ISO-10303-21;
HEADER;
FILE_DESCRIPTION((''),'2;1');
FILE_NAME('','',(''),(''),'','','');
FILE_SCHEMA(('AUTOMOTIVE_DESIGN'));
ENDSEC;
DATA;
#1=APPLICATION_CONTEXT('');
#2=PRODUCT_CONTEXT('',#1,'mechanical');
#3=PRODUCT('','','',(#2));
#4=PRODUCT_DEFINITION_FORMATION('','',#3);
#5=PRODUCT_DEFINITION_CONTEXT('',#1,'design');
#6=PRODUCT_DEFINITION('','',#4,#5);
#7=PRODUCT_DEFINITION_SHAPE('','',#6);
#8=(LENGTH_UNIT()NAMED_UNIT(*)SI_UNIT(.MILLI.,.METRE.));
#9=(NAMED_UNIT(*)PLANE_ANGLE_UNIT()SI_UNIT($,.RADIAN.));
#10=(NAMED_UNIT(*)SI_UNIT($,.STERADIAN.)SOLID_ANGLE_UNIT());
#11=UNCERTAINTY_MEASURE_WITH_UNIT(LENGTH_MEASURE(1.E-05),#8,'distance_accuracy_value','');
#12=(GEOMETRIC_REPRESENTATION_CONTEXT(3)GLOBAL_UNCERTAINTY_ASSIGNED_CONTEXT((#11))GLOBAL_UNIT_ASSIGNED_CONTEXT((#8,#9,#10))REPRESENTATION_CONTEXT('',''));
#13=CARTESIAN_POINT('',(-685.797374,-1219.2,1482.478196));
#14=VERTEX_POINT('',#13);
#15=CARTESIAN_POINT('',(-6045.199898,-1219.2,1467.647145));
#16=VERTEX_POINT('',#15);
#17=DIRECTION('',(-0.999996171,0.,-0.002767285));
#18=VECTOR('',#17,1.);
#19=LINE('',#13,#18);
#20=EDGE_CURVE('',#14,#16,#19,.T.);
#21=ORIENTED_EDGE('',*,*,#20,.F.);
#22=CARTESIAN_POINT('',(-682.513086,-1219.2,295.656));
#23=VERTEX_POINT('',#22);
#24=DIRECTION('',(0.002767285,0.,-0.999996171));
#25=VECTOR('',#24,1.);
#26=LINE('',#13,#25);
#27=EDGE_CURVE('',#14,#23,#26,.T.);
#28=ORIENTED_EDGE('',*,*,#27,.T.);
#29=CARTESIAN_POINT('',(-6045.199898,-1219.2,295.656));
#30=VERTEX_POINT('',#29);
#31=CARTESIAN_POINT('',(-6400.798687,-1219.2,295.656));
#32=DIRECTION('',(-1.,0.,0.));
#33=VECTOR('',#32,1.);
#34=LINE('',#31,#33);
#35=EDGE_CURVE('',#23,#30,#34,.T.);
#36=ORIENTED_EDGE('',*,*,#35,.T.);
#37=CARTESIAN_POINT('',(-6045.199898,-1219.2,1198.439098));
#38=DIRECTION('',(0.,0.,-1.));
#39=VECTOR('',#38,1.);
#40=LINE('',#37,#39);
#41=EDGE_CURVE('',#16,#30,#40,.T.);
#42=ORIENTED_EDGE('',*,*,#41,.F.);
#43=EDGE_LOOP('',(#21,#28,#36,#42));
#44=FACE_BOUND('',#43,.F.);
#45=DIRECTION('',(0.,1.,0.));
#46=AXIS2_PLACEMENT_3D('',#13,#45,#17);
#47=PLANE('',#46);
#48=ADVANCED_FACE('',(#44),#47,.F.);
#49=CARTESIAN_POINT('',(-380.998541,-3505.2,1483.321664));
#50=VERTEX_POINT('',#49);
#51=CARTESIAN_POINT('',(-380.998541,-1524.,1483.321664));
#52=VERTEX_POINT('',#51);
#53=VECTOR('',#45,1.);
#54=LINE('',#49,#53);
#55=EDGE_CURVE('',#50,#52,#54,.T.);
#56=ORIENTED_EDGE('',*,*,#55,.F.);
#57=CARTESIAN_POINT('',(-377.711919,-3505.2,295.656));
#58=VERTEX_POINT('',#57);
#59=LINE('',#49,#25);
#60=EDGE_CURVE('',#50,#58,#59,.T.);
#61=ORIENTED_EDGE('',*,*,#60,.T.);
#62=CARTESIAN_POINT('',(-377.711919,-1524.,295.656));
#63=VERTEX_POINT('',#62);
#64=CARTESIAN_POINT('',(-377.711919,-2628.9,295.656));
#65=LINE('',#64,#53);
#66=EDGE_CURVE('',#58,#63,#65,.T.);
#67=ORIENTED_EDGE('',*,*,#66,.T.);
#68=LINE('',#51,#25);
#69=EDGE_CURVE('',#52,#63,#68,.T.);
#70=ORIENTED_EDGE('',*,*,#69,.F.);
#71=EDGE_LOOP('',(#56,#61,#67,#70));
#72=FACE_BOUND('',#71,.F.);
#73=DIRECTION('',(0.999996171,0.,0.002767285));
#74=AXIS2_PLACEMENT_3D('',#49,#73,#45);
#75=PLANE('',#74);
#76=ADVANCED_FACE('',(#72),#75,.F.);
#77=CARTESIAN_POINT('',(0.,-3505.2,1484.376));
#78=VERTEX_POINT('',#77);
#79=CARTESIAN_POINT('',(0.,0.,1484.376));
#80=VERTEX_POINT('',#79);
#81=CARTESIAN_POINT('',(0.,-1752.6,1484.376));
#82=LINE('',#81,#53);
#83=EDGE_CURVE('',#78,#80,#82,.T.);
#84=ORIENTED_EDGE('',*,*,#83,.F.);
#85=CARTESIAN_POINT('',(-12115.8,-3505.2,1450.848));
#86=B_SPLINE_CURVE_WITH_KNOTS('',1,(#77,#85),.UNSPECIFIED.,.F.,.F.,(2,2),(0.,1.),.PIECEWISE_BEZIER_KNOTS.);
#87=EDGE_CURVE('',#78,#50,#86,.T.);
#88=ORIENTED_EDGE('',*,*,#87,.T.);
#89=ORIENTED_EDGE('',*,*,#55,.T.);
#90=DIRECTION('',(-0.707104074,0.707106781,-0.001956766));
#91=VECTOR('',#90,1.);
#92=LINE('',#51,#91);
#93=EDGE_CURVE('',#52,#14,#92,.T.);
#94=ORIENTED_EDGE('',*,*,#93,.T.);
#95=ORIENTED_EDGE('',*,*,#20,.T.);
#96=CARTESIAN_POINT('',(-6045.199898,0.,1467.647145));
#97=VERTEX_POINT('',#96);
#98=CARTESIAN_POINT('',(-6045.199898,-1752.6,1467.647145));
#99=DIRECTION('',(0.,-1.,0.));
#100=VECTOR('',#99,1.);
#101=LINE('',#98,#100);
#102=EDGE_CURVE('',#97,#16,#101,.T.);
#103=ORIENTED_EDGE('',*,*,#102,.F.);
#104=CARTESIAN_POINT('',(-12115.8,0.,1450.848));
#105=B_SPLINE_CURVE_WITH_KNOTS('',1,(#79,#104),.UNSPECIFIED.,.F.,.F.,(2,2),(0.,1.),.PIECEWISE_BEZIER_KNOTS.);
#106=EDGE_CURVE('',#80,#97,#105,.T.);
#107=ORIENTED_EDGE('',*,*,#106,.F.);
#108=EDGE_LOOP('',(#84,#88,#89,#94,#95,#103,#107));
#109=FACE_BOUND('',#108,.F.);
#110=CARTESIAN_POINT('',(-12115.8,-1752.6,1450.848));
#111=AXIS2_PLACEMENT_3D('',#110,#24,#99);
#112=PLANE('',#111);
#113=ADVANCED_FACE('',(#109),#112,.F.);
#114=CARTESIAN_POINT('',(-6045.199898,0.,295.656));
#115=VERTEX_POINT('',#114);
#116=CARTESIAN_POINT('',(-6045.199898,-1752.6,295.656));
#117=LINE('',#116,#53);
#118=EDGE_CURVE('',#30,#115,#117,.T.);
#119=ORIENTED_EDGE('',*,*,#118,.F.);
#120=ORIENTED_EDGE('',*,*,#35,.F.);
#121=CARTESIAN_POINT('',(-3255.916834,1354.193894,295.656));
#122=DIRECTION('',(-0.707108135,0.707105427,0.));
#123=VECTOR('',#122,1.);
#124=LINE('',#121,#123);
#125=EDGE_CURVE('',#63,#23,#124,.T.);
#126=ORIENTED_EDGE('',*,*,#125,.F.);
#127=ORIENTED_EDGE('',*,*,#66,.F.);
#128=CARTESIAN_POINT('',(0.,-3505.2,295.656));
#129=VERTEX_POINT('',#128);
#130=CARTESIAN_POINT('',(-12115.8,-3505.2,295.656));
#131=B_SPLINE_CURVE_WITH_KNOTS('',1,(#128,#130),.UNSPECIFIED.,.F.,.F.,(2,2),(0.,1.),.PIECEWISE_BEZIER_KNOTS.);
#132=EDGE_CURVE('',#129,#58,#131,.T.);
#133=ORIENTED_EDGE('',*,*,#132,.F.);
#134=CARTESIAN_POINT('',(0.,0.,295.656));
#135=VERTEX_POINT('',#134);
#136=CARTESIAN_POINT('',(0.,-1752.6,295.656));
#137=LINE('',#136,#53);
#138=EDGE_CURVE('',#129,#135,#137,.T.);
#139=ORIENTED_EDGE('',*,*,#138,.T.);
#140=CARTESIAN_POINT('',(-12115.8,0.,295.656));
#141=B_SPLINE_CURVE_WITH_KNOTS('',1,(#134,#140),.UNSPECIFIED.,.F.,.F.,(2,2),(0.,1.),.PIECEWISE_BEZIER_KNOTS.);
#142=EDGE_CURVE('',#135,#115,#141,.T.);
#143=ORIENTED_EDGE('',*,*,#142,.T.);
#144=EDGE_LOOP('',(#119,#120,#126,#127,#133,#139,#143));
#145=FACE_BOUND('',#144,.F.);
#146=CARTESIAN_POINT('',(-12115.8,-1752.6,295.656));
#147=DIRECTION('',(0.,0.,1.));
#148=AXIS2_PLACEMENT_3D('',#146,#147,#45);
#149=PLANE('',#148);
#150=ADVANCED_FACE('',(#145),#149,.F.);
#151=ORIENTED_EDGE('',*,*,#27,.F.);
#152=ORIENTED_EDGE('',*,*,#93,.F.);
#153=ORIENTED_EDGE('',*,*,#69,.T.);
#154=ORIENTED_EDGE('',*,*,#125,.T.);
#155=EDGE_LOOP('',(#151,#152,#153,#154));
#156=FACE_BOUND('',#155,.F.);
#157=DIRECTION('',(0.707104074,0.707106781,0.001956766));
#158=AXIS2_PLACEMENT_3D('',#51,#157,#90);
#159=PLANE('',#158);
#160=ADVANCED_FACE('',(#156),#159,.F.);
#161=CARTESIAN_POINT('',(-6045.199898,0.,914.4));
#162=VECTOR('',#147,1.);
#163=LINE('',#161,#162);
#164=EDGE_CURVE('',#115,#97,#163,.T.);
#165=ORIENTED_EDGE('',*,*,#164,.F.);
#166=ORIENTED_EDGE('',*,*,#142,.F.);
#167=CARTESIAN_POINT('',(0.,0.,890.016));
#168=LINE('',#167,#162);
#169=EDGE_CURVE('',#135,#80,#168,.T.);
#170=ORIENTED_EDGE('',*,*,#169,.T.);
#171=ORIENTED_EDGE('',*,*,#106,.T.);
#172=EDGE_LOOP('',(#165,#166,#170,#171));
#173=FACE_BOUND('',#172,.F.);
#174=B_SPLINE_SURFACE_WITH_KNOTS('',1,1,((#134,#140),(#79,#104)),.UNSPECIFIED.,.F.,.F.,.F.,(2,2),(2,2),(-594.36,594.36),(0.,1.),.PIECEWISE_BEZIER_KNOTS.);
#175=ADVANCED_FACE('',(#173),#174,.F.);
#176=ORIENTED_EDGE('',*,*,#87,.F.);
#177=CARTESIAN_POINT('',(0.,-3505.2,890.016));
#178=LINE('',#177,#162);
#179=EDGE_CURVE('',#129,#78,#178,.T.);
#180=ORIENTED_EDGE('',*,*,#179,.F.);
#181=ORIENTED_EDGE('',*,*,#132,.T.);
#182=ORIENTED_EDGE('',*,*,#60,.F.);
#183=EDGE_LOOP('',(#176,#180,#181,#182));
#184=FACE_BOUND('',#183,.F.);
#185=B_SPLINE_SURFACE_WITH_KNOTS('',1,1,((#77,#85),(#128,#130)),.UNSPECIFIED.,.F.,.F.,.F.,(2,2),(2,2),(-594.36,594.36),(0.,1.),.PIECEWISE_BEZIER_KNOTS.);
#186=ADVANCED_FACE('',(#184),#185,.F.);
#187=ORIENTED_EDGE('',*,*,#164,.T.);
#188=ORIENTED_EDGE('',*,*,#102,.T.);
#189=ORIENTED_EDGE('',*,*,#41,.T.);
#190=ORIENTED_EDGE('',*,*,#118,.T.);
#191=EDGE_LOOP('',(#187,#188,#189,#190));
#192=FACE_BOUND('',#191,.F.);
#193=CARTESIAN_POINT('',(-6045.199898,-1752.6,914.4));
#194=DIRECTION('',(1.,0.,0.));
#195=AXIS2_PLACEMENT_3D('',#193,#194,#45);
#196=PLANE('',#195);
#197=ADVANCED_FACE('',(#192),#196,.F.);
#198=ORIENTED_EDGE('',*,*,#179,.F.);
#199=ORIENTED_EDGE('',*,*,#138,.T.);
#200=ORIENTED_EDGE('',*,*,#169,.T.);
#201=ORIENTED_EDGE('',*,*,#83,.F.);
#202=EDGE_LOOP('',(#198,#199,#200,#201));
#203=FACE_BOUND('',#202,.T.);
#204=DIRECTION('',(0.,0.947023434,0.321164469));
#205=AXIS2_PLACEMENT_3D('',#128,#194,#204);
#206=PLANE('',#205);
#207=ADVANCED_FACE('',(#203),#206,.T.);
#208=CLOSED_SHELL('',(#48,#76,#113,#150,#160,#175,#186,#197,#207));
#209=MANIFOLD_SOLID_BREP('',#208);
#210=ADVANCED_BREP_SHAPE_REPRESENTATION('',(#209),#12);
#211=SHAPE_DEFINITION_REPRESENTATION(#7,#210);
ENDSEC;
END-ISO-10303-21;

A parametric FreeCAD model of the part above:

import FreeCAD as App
import Part
import Sketcher
from FreeCAD import Vector
Q = App.Units.Quantity

doc = App.newDocument("Part")
body = doc.addObject("PartDesign::Body", "Body")

sketch1 = body.newObject("Sketcher::SketchObject", "Sketch")
sketch1.AttachmentSupport = (doc.getObject("YZ_Plane"), [""])
sketch1.MapMode = "FlatFace"
sketch1.addGeometry([
    Part.LineSegment(Vector(-3505.2, 1484.376, 0), Vector(-3505.2, 295.656, 0)),
    Part.LineSegment(Vector(-3505.2, 295.656, 0), Vector(0, 295.656, 0)),
    Part.LineSegment(Vector(0, 295.656, 0), Vector(0, 1484.376, 0)),
    Part.LineSegment(Vector(0, 1484.376, 0), Vector(-3505.2, 1484.376, 0)),
], False)
sketch1.addConstraint([
    Sketcher.Constraint("Coincident", 0, 2, 1, 1),
    Sketcher.Constraint("Coincident", 1, 2, 2, 1),
    Sketcher.Constraint("Coincident", 2, 2, 3, 1),
    Sketcher.Constraint("Coincident", 3, 2, 0, 1),
    Sketcher.Constraint("Vertical", 0),
    Sketcher.Constraint("Horizontal", 1),
    Sketcher.Constraint("Vertical", 2),
    Sketcher.Constraint("Horizontal", 3),
    Sketcher.Constraint("PointOnObject", 1, 2, -2),
    Sketcher.Constraint("DistanceX", 1, 1, 1, 2, Q("138 in")),
    Sketcher.Constraint("DistanceY", 0, 2, 0, 1, Q("46.8 in")),
    Sketcher.Constraint("DistanceY", -1, 1, 0, 2, Q("11.64 in")),
])

sketch2 = body.newObject("Sketcher::SketchObject", "Sketch001")
sketch2.AttachmentSupport = (doc.getObject("YZ_Plane"), [""])
sketch2.MapMode = "FlatFace"
sketch2.AttachmentOffset = App.Placement(Vector(0, 0, -477 * 25.4), App.Rotation())
sketch2.addGeometry([
    Part.LineSegment(Vector(-3505.2, 1450.848, 0), Vector(-3505.2, 295.656, 0)),
    Part.LineSegment(Vector(-3505.2, 295.656, 0), Vector(0, 295.656, 0)),
    Part.LineSegment(Vector(0, 295.656, 0), Vector(0, 1450.848, 0)),
    Part.LineSegment(Vector(0, 1450.848, 0), Vector(-3505.2, 1450.848, 0)),
], False)
sketch2.addConstraint([
    Sketcher.Constraint("Coincident", 0, 2, 1, 1),
    Sketcher.Constraint("Coincident", 1, 2, 2, 1),
    Sketcher.Constraint("Coincident", 2, 2, 3, 1),
    Sketcher.Constraint("Coincident", 3, 2, 0, 1),
    Sketcher.Constraint("Vertical", 0),
    Sketcher.Constraint("Horizontal", 1),
    Sketcher.Constraint("Vertical", 2),
    Sketcher.Constraint("Horizontal", 3),
    Sketcher.Constraint("PointOnObject", 1, 2, -2),
    Sketcher.Constraint("DistanceX", 1, 1, 1, 2, Q("138 in")),
    Sketcher.Constraint("DistanceY", 0, 2, 0, 1, Q("45.48 in")),
    Sketcher.Constraint("DistanceY", -1, 1, 0, 2, Q("11.64 in")),
])

additiveloft = body.newObject("PartDesign::AdditiveLoft", "AdditiveLoft")
additiveloft.Profile = sketch1
additiveloft.Sections = [sketch2]

sketch3 = body.newObject("Sketcher::SketchObject", "Sketch002")
sketch3.Placement = App.Placement(Vector(-4.107676, 0, 1484.364633), App.Rotation(Vector(0.999996171, 0, 0.002767285), Vector(0, 1, 0), Vector(-0.002767285, 0, 0.999996171), "ZXY"))
sketch3.addGeometry([
    Part.LineSegment(Vector(-11730.738698, -1524, 0), Vector(-11730.738698, -3505.199999, 0)),
    Part.LineSegment(Vector(-11730.738698, -3505.199999, 0), Vector(-376.892309, -3505.199999, 0)),
    Part.LineSegment(Vector(-376.892309, -3505.199999, 0), Vector(-376.892309, -1524, 0)),
    Part.LineSegment(Vector(-376.892309, -1524, 0), Vector(-681.692308, -1219.2, 0)),
    Part.LineSegment(Vector(-681.692308, -1219.2, 0), Vector(-11425.938698, -1219.2, 0)),
    Part.LineSegment(Vector(-11425.938698, -1219.2, 0), Vector(-11730.738698, -1524, 0)),
], False)
sketch3.addConstraint([
    Sketcher.Constraint("Coincident", 0, 2, 1, 1),
    Sketcher.Constraint("Coincident", 1, 2, 2, 1),
    Sketcher.Constraint("Coincident", 2, 2, 3, 1),
    Sketcher.Constraint("Coincident", 3, 2, 4, 1),
    Sketcher.Constraint("Coincident", 4, 2, 5, 1),
    Sketcher.Constraint("Coincident", 5, 2, 0, 1),
    Sketcher.Constraint("Vertical", 0),
    Sketcher.Constraint("Horizontal", 1),
    Sketcher.Constraint("Vertical", 2),
    Sketcher.Constraint("Horizontal", 4),
    Sketcher.Constraint("Perpendicular", 3, 5),
    Sketcher.Constraint("Horizontal", 2, 2, 5, 2),
    Sketcher.Constraint("Equal", 3, 5),
    Sketcher.Constraint("DistanceY", 0, 2, 0, 1, Q("78 in")),
    Sketcher.Constraint("DistanceY", 0, 2, -1, 1, Q("138 in")),
    Sketcher.Constraint("DistanceY", 3, 2, -1, 1, Q("48 in")),
    Sketcher.Constraint("DistanceX", 1, 1, 1, 2, 11353.84639),
    Sketcher.Constraint("DistanceX", 0, 2, -1, 1, 11730.738698),
])
pocket1 = body.newObject("PartDesign::Pocket", "Pocket")
pocket1.Profile = sketch3
pocket1.Type = "ThroughAll"

sketch4 = body.newObject("Sketcher::SketchObject", "Sketch003")
sketch4.AttachmentSupport = (doc.getObject("YZ_Plane"), [""])
sketch4.MapMode = "FlatFace"
sketch4.AttachmentOffset = App.Placement(Vector(0, 0, -6045.199898), App.Rotation())
sketch4.addGeometry([
    Part.LineSegment(Vector(-3505.2, 1828.8, 0), Vector(-3505.2, 0, 0)),
    Part.LineSegment(Vector(-3505.2, 0, 0), Vector(0, 0, 0)),
    Part.LineSegment(Vector(0, 0, 0), Vector(0, 1828.8, 0)),
    Part.LineSegment(Vector(0, 1828.8, 0), Vector(-3505.2, 1828.8, 0)),
], False)
sketch4.addConstraint([
    Sketcher.Constraint("Coincident", 0, 2, 1, 1),
    Sketcher.Constraint("Coincident", 1, 2, 2, 1),
    Sketcher.Constraint("Coincident", 2, 2, 3, 1),
    Sketcher.Constraint("Coincident", 3, 2, 0, 1),
    Sketcher.Constraint("Vertical", 0),
    Sketcher.Constraint("Horizontal", 1),
    Sketcher.Constraint("Vertical", 2),
    Sketcher.Constraint("Horizontal", 3),
    Sketcher.Constraint("Coincident", 1, 2, -1, 1),
    Sketcher.Constraint("DistanceX", 1, 1, 1, 2, Q("138 in")),
    Sketcher.Constraint("DistanceY", 0, 2, 0, 1, Q("72 in")),
])
pocket2 = body.newObject("PartDesign::Pocket", "Pocket001")
pocket2.Profile = sketch4
pocket2.Type = "ThroughAll"

doc.recompute()
